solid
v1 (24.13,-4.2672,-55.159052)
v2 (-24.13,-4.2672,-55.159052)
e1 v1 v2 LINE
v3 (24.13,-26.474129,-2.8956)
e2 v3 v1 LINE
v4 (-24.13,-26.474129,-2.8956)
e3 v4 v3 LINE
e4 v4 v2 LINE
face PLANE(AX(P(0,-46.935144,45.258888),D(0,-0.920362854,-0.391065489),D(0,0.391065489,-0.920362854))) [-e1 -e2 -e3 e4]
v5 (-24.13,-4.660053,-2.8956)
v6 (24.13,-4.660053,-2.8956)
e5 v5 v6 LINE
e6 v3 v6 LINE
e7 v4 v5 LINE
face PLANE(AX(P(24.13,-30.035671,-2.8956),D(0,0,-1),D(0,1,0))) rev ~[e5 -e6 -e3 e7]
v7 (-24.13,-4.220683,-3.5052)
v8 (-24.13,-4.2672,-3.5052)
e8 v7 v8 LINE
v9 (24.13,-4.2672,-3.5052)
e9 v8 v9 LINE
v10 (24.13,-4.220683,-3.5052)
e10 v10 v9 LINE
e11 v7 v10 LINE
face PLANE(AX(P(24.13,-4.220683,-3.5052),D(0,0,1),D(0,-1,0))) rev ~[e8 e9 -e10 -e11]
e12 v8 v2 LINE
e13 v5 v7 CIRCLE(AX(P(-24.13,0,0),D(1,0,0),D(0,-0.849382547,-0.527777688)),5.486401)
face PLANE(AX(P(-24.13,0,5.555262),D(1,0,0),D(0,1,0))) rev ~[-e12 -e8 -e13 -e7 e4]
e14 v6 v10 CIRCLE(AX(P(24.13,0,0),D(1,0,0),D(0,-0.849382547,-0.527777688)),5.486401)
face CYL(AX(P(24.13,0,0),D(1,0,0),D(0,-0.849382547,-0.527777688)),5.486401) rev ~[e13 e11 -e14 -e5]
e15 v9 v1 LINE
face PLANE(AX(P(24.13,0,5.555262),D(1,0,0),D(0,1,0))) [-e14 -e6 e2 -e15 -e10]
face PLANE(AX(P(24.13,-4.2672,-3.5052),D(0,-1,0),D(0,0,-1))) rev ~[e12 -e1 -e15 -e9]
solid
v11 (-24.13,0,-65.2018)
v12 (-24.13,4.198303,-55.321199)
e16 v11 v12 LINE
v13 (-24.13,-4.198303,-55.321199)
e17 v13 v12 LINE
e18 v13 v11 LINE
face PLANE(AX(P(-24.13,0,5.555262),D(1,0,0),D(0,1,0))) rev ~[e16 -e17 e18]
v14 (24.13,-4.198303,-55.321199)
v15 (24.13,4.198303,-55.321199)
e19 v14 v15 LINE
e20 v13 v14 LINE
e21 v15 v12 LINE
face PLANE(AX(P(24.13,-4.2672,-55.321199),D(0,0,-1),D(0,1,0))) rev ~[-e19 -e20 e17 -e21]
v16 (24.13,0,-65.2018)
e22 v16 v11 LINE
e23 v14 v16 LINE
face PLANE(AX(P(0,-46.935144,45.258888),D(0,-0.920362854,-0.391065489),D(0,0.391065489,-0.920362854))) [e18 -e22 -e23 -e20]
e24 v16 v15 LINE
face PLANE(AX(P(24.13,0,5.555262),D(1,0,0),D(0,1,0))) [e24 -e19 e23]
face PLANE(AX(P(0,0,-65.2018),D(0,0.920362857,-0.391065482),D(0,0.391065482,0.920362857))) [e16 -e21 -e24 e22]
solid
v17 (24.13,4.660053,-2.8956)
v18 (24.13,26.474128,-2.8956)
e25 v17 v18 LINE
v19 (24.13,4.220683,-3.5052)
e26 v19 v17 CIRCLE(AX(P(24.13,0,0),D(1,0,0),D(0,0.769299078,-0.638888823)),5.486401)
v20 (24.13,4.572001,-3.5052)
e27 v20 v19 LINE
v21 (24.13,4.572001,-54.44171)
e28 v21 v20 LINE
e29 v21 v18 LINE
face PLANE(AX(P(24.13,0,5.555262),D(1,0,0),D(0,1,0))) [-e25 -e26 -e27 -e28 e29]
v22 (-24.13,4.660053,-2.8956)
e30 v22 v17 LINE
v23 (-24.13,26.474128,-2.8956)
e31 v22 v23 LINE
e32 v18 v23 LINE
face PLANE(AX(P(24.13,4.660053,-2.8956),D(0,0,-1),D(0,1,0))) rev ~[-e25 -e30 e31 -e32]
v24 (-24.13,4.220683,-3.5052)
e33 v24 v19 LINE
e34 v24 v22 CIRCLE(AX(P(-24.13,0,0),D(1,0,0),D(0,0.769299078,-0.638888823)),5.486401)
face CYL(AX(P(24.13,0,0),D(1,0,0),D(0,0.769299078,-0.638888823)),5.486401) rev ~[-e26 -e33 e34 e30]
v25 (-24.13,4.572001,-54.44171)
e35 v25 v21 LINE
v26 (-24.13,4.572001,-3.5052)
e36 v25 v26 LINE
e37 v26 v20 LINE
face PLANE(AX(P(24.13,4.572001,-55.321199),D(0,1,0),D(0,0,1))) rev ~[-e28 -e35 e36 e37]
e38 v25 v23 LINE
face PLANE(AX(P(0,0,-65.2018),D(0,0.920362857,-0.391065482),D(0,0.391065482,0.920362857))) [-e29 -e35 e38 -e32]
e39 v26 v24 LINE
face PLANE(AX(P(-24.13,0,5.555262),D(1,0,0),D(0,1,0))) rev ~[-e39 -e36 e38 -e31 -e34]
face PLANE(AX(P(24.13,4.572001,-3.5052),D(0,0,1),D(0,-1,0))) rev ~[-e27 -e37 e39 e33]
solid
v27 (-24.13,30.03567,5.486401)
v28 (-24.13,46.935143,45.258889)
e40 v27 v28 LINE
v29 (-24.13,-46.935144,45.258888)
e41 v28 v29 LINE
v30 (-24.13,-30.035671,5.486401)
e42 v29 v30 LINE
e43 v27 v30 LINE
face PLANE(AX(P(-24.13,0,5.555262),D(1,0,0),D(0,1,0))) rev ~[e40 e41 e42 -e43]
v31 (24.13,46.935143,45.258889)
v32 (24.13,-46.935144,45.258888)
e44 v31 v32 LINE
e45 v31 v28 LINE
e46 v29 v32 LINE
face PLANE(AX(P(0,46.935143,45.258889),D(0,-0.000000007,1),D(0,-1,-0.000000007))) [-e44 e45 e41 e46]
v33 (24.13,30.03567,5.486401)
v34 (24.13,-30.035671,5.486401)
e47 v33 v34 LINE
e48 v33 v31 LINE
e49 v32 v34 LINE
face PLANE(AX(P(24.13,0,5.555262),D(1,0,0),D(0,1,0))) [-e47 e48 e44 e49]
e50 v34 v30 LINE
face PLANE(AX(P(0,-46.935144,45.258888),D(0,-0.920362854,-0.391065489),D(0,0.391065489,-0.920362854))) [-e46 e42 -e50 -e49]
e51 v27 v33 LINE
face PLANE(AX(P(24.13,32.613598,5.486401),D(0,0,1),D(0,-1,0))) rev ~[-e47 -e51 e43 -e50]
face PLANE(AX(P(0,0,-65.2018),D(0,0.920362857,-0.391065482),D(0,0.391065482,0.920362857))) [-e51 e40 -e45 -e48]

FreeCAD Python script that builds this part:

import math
import FreeCAD as App
import Part
import Sketcher

V = App.Vector
Q = App.Units.Quantity

doc = App.newDocument("Part")
body = doc.addObject("PartDesign::Body", "Body")
body.AllowCompound = True

sketch1 = body.newObject("Sketcher::SketchObject", "Sketch")
sketch1.AttachmentSupport = (doc.getObject("YZ_Plane"), [""])
sketch1.MapMode = "FlatFace"
sketch1.addGeometry(Part.LineSegment(V(46.935143, 45.258889, 0), V(-46.935144, 45.258888, 0)), False)
sketch1.addGeometry(Part.LineSegment(V(-46.935144, 45.258888, 0), V(0, -65.2018, 0)), False)
sketch1.addGeometry(Part.LineSegment(V(0, -65.2018, 0), V(46.935143, 45.258889, 0)), False)
sketch1.addConstraint(Sketcher.Constraint("Coincident", 0, 2, 1, 1))
sketch1.addConstraint(Sketcher.Constraint("Coincident", 1, 2, 2, 1))
sketch1.addConstraint(Sketcher.Constraint("Coincident", 2, 2, 0, 1))
sketch1.addConstraint(Sketcher.Constraint("Horizontal", 0))
sketch1.addConstraint(Sketcher.Constraint("PointOnObject", 1, 2, -2))
sketch1.addConstraint(Sketcher.Constraint("Equal", 1, 2))
sketch1.addConstraint(Sketcher.Constraint("DistanceY", 1, 2, -1, 1, Q("2.567 in")))
sketch1.addConstraint(Sketcher.Constraint("Distance", 1, 120.018629))
sketch1.addConstraint(Sketcher.Constraint("DistanceX", 0, 2, 0, 1, 93.870287))
pad1 = body.newObject("PartDesign::Pad", "Pad")
pad1.Profile = sketch1
pad1.Length = Q("1.9 in")
pad1.Midplane = True

sketch2 = body.newObject("Sketcher::SketchObject", "Sketch001")
sketch2.AttachmentSupport = (doc.getObject("YZ_Plane"), [""])
sketch2.MapMode = "FlatFace"
sketch2.AttachmentOffset = App.Placement(V(0, 0, 0.95 * 25.4), App.Rotation())
sketch2.addGeometry(Part.LineSegment(V(-30.035671, 5.486401, 0), V(-30.035671, -2.8956, 0)), False)
sketch2.addGeometry(Part.LineSegment(V(-30.035671, -2.8956, 0), V(-4.660053, -2.8956, 0)), False)
sketch2.addGeometry(Part.ArcOfCircle(Part.Circle(V(0, 0, 0), V(0, 0, 1), 5.486401), math.radians(-148.144575), math.radians(-140.290988)), False)
sketch2.addGeometry(Part.LineSegment(V(-4.220683, -3.5052, 0), V(-4.2672, -3.5052, 0)), False)
sketch2.addGeometry(Part.LineSegment(V(-4.2672, -3.5052, 0), V(-4.2672, -55.321199, 0)), False)
sketch2.addGeometry(Part.LineSegment(V(-4.2672, -55.321199, 0), V(4.572001, -55.321199, 0)), False)
sketch2.addGeometry(Part.LineSegment(V(4.572001, -55.321199, 0), V(4.572001, -3.5052, 0)), False)
sketch2.addGeometry(Part.LineSegment(V(4.572001, -3.5052, 0), V(4.220683, -3.5052, 0)), False)
sketch2.addGeometry(Part.ArcOfCircle(Part.Circle(V(0, 0, 0), V(0, 0, 1), 5.486401), math.radians(-39.709012), math.radians(-31.855425)), False)
sketch2.addGeometry(Part.LineSegment(V(4.660053, -2.8956, 0), V(32.613598, -2.8956, 0)), False)
sketch2.addGeometry(Part.LineSegment(V(32.613598, -2.8956, 0), V(32.613598, 5.486401, 0)), False)
sketch2.addGeometry(Part.LineSegment(V(32.613598, 5.486401, 0), V(-30.035671, 5.486401, 0)), False)
sketch2.addConstraint(Sketcher.Constraint("Coincident", 0, 2, 1, 1))
sketch2.addConstraint(Sketcher.Constraint("Coincident", 1, 2, 2, 1))
sketch2.addConstraint(Sketcher.Constraint("Coincident", 2, 2, 3, 1))
sketch2.addConstraint(Sketcher.Constraint("Coincident", 3, 2, 4, 1))
sketch2.addConstraint(Sketcher.Constraint("Coincident", 4, 2, 5, 1))
sketch2.addConstraint(Sketcher.Constraint("Coincident", 5, 2, 6, 1))
sketch2.addConstraint(Sketcher.Constraint("Coincident", 6, 2, 7, 1))
sketch2.addConstraint(Sketcher.Constraint("Coincident", 7, 2, 8, 1))
sketch2.addConstraint(Sketcher.Constraint("Coincident", 8, 2, 9, 1))
sketch2.addConstraint(Sketcher.Constraint("Coincident", 9, 2, 10, 1))
sketch2.addConstraint(Sketcher.Constraint("Coincident", 10, 2, 11, 1))
sketch2.addConstraint(Sketcher.Constraint("Coincident", 11, 2, 0, 1))
sketch2.addConstraint(Sketcher.Constraint("Vertical", 0))
sketch2.addConstraint(Sketcher.Constraint("Horizontal", 1))
sketch2.addConstraint(Sketcher.Constraint("Horizontal", 3))
sketch2.addConstraint(Sketcher.Constraint("Vertical", 4))
sketch2.addConstraint(Sketcher.Constraint("Horizontal", 5))
sketch2.addConstraint(Sketcher.Constraint("Vertical", 6))
sketch2.addConstraint(Sketcher.Constraint("Horizontal", 7))
sketch2.addConstraint(Sketcher.Constraint("Horizontal", 9))
sketch2.addConstraint(Sketcher.Constraint("Vertical", 10))
sketch2.addConstraint(Sketcher.Constraint("Horizontal", 11))
sketch2.addConstraint(Sketcher.Constraint("Coincident", 2, 3, -1, 1))
sketch2.addConstraint(Sketcher.Constraint("Coincident", 8, 3, -1, 1))
sketch2.addConstraint(Sketcher.Constraint("Equal", 2, 8))
sketch2.addConstraint(Sketcher.Constraint("Horizontal", 3, 2, 6, 2))
sketch2.addConstraint(Sketcher.Constraint("Horizontal", 1, 2, 8, 2))
sketch2.addConstraint(Sketcher.Constraint("Radius", 2, Q("0.216 in")))
sketch2.addConstraint(Sketcher.Constraint("DistanceY", 0, 2, 0, 1, Q("0.33 in")))
sketch2.addConstraint(Sketcher.Constraint("DistanceY", 4, 2, 4, 1, Q("2.04 in")))
sketch2.addConstraint(Sketcher.Constraint("DistanceX", 5, 1, 5, 2, Q("0.348 in")))
sketch2.addConstraint(Sketcher.Constraint("DistanceX", -1, 1, 5, 2, Q("0.18 in")))
sketch2.addConstraint(Sketcher.Constraint("DistanceY", 0, 2, -1, 1, Q("0.114 in")))
sketch2.addConstraint(Sketcher.Constraint("DistanceY", 2, 2, -1, 1, Q("0.138 in")))
sketch2.addConstraint(Sketcher.Constraint("DistanceX", -1, 1, 9, 2, Q("1.2839999 in")))
sketch2.addConstraint(Sketcher.Constraint("DistanceX", 11, 2, 11, 1, 62.649269))
pocket1 = body.newObject("PartDesign::Pocket", "Pocket")
pocket1.Profile = sketch2
pocket1.Length = Q("55 in")
pocket1.Midplane = True

doc.recompute()
